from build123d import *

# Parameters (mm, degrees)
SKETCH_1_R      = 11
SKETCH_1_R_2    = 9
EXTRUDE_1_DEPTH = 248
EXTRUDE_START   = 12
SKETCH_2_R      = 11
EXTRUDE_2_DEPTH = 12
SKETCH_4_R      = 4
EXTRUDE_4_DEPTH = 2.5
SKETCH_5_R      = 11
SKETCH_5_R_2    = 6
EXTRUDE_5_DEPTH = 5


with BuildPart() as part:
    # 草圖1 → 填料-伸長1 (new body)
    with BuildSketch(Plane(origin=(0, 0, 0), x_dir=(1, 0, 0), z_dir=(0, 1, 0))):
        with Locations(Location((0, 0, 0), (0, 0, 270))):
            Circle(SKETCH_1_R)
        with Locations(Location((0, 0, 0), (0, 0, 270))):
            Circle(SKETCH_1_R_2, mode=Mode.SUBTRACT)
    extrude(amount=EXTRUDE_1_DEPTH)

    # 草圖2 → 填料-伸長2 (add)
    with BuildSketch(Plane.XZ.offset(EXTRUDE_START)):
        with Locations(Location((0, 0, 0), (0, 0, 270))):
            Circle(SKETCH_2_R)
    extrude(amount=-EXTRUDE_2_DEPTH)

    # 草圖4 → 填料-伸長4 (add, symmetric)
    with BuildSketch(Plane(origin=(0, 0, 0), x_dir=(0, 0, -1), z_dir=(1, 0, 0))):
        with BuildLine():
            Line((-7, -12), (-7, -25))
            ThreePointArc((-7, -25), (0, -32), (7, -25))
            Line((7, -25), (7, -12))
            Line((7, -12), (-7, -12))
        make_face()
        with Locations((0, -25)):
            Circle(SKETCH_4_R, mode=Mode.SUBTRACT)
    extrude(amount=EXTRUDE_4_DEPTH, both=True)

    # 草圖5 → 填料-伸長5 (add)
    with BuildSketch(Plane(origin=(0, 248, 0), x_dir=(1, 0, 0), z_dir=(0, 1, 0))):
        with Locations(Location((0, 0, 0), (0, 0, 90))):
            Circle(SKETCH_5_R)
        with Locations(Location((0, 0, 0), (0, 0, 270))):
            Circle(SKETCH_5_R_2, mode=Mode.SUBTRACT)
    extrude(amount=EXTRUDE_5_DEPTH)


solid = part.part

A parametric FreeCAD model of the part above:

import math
import FreeCAD as App
import Part
import Sketcher
from FreeCAD import Vector
Q = App.Units.Quantity

doc = App.newDocument("Part")
body = doc.addObject("PartDesign::Body", "Body")

sketch1 = body.newObject("Sketcher::SketchObject", "Sketch")
sketch1.AttachmentSupport = (doc.getObject("XZ_Plane"), [""])
sketch1.MapMode = "FlatFace"
sketch1.addGeometry(Part.Circle(Vector(0, 0, 0), Vector(0, 0, 1), 11), False)
sketch1.addGeometry(Part.Circle(Vector(0, 0, 0), Vector(0, 0, 1), 9), False)
sketch1.addConstraint(Sketcher.Constraint("Coincident", 0, 3, -1, 1))
sketch1.addConstraint(Sketcher.Constraint("Coincident", 1, 3, -1, 1))
sketch1.addConstraint(Sketcher.Constraint("Diameter", 0, Q("22 mm")))
sketch1.addConstraint(Sketcher.Constraint("Diameter", 1, Q("18 mm")))
pad1 = body.newObject("PartDesign::Pad", "Pad")
pad1.Profile = sketch1
pad1.Length = 248
pad1.Reversed = True

sketch2 = body.newObject("Sketcher::SketchObject", "Sketch001")
sketch2.AttachmentSupport = (doc.getObject("XZ_Plane"), [""])
sketch2.MapMode = "FlatFace"
sketch2.AttachmentOffset = App.Placement(Vector(0, 0, 12), App.Rotation())
sketch2.addGeometry(Part.Circle(Vector(0, 0, 0), Vector(0, 0, 1), 11), False)
sketch2.addConstraint(Sketcher.Constraint("Coincident", 0, 3, -1, 1))
sketch2.addConstraint(Sketcher.Constraint("Diameter", 0, Q("22 mm")))
pad2 = body.newObject("PartDesign::Pad", "Pad001")
pad2.Profile = sketch2
pad2.Length = 12
pad2.Reversed = True

sketch3 = body.newObject("Sketcher::SketchObject", "Sketch002")
sketch3.AttachmentSupport = (doc.getObject("YZ_Plane"), [""])
sketch3.MapMode = "FlatFace"
sketch3.addGeometry(Part.LineSegment(Vector(-12, 7, 0), Vector(-25, 7, 0)), False)
sketch3.addGeometry(Part.ArcOfCircle(Part.Circle(Vector(-25, 0, 0), Vector(0, 0, 1), 7), math.radians(90), math.radians(270)), False)
sketch3.addGeometry(Part.LineSegment(Vector(-25, -7, 0), Vector(-12, -7, 0)), False)
sketch3.addGeometry(Part.LineSegment(Vector(-12, -7, 0), Vector(-12, 7, 0)), False)
sketch3.addGeometry(Part.Circle(Vector(-25, 0, 0), Vector(0, 0, 1), 4), False)
sketch3.addConstraint(Sketcher.Constraint("Tangent", 0, 2, 1, 1))
sketch3.addConstraint(Sketcher.Constraint("Tangent", 1, 2, 2, 1))
sketch3.addConstraint(Sketcher.Constraint("Coincident", 2, 2, 3, 1))
sketch3.addConstraint(Sketcher.Constraint("Coincident", 3, 2, 0, 1))
sketch3.addConstraint(Sketcher.Constraint("Horizontal", 0))
sketch3.addConstraint(Sketcher.Constraint("Horizontal", 2))
sketch3.addConstraint(Sketcher.Constraint("Vertical", 3))
sketch3.addConstraint(Sketcher.Constraint("Coincident", 4, 3, 1, 3))
sketch3.addConstraint(Sketcher.Constraint("PointOnObject", 1, 3, -1))
sketch3.addConstraint(Sketcher.Constraint("Diameter", 4, Q("8 mm")))
sketch3.addConstraint(Sketcher.Constraint("Radius", 1, Q("7 mm")))
sketch3.addConstraint(Sketcher.Constraint("DistanceX", 0, 2, 0, 1, Q("13 mm")))
sketch3.addConstraint(Sketcher.Constraint("DistanceX", 1, 3, -1, 1, Q("25 mm")))
pad3 = body.newObject("PartDesign::Pad", "Pad002")
pad3.Profile = sketch3
pad3.Length = 5
pad3.Midplane = True

sketch4 = body.newObject("Sketcher::SketchObject", "Sketch003")
sketch4.AttachmentSupport = (doc.getObject("XZ_Plane"), [""])
sketch4.MapMode = "FlatFace"
sketch4.AttachmentOffset = App.Placement(Vector(0, 0, -248), App.Rotation())
sketch4.addGeometry(Part.Circle(Vector(0, 0, 0), Vector(0, 0, 1), 11), False)
sketch4.addGeometry(Part.Circle(Vector(0, 0, 0), Vector(0, 0, 1), 6), False)
sketch4.addConstraint(Sketcher.Constraint("Coincident", 0, 3, -1, 1))
sketch4.addConstraint(Sketcher.Constraint("Coincident", 1, 3, -1, 1))
sketch4.addConstraint(Sketcher.Constraint("Diameter", 0, Q("22 mm")))
sketch4.addConstraint(Sketcher.Constraint("Diameter", 1, Q("12 mm")))
pad4 = body.newObject("PartDesign::Pad", "Pad003")
pad4.Profile = sketch4
pad4.Length = 5
pad4.Reversed = True

doc.recompute()
